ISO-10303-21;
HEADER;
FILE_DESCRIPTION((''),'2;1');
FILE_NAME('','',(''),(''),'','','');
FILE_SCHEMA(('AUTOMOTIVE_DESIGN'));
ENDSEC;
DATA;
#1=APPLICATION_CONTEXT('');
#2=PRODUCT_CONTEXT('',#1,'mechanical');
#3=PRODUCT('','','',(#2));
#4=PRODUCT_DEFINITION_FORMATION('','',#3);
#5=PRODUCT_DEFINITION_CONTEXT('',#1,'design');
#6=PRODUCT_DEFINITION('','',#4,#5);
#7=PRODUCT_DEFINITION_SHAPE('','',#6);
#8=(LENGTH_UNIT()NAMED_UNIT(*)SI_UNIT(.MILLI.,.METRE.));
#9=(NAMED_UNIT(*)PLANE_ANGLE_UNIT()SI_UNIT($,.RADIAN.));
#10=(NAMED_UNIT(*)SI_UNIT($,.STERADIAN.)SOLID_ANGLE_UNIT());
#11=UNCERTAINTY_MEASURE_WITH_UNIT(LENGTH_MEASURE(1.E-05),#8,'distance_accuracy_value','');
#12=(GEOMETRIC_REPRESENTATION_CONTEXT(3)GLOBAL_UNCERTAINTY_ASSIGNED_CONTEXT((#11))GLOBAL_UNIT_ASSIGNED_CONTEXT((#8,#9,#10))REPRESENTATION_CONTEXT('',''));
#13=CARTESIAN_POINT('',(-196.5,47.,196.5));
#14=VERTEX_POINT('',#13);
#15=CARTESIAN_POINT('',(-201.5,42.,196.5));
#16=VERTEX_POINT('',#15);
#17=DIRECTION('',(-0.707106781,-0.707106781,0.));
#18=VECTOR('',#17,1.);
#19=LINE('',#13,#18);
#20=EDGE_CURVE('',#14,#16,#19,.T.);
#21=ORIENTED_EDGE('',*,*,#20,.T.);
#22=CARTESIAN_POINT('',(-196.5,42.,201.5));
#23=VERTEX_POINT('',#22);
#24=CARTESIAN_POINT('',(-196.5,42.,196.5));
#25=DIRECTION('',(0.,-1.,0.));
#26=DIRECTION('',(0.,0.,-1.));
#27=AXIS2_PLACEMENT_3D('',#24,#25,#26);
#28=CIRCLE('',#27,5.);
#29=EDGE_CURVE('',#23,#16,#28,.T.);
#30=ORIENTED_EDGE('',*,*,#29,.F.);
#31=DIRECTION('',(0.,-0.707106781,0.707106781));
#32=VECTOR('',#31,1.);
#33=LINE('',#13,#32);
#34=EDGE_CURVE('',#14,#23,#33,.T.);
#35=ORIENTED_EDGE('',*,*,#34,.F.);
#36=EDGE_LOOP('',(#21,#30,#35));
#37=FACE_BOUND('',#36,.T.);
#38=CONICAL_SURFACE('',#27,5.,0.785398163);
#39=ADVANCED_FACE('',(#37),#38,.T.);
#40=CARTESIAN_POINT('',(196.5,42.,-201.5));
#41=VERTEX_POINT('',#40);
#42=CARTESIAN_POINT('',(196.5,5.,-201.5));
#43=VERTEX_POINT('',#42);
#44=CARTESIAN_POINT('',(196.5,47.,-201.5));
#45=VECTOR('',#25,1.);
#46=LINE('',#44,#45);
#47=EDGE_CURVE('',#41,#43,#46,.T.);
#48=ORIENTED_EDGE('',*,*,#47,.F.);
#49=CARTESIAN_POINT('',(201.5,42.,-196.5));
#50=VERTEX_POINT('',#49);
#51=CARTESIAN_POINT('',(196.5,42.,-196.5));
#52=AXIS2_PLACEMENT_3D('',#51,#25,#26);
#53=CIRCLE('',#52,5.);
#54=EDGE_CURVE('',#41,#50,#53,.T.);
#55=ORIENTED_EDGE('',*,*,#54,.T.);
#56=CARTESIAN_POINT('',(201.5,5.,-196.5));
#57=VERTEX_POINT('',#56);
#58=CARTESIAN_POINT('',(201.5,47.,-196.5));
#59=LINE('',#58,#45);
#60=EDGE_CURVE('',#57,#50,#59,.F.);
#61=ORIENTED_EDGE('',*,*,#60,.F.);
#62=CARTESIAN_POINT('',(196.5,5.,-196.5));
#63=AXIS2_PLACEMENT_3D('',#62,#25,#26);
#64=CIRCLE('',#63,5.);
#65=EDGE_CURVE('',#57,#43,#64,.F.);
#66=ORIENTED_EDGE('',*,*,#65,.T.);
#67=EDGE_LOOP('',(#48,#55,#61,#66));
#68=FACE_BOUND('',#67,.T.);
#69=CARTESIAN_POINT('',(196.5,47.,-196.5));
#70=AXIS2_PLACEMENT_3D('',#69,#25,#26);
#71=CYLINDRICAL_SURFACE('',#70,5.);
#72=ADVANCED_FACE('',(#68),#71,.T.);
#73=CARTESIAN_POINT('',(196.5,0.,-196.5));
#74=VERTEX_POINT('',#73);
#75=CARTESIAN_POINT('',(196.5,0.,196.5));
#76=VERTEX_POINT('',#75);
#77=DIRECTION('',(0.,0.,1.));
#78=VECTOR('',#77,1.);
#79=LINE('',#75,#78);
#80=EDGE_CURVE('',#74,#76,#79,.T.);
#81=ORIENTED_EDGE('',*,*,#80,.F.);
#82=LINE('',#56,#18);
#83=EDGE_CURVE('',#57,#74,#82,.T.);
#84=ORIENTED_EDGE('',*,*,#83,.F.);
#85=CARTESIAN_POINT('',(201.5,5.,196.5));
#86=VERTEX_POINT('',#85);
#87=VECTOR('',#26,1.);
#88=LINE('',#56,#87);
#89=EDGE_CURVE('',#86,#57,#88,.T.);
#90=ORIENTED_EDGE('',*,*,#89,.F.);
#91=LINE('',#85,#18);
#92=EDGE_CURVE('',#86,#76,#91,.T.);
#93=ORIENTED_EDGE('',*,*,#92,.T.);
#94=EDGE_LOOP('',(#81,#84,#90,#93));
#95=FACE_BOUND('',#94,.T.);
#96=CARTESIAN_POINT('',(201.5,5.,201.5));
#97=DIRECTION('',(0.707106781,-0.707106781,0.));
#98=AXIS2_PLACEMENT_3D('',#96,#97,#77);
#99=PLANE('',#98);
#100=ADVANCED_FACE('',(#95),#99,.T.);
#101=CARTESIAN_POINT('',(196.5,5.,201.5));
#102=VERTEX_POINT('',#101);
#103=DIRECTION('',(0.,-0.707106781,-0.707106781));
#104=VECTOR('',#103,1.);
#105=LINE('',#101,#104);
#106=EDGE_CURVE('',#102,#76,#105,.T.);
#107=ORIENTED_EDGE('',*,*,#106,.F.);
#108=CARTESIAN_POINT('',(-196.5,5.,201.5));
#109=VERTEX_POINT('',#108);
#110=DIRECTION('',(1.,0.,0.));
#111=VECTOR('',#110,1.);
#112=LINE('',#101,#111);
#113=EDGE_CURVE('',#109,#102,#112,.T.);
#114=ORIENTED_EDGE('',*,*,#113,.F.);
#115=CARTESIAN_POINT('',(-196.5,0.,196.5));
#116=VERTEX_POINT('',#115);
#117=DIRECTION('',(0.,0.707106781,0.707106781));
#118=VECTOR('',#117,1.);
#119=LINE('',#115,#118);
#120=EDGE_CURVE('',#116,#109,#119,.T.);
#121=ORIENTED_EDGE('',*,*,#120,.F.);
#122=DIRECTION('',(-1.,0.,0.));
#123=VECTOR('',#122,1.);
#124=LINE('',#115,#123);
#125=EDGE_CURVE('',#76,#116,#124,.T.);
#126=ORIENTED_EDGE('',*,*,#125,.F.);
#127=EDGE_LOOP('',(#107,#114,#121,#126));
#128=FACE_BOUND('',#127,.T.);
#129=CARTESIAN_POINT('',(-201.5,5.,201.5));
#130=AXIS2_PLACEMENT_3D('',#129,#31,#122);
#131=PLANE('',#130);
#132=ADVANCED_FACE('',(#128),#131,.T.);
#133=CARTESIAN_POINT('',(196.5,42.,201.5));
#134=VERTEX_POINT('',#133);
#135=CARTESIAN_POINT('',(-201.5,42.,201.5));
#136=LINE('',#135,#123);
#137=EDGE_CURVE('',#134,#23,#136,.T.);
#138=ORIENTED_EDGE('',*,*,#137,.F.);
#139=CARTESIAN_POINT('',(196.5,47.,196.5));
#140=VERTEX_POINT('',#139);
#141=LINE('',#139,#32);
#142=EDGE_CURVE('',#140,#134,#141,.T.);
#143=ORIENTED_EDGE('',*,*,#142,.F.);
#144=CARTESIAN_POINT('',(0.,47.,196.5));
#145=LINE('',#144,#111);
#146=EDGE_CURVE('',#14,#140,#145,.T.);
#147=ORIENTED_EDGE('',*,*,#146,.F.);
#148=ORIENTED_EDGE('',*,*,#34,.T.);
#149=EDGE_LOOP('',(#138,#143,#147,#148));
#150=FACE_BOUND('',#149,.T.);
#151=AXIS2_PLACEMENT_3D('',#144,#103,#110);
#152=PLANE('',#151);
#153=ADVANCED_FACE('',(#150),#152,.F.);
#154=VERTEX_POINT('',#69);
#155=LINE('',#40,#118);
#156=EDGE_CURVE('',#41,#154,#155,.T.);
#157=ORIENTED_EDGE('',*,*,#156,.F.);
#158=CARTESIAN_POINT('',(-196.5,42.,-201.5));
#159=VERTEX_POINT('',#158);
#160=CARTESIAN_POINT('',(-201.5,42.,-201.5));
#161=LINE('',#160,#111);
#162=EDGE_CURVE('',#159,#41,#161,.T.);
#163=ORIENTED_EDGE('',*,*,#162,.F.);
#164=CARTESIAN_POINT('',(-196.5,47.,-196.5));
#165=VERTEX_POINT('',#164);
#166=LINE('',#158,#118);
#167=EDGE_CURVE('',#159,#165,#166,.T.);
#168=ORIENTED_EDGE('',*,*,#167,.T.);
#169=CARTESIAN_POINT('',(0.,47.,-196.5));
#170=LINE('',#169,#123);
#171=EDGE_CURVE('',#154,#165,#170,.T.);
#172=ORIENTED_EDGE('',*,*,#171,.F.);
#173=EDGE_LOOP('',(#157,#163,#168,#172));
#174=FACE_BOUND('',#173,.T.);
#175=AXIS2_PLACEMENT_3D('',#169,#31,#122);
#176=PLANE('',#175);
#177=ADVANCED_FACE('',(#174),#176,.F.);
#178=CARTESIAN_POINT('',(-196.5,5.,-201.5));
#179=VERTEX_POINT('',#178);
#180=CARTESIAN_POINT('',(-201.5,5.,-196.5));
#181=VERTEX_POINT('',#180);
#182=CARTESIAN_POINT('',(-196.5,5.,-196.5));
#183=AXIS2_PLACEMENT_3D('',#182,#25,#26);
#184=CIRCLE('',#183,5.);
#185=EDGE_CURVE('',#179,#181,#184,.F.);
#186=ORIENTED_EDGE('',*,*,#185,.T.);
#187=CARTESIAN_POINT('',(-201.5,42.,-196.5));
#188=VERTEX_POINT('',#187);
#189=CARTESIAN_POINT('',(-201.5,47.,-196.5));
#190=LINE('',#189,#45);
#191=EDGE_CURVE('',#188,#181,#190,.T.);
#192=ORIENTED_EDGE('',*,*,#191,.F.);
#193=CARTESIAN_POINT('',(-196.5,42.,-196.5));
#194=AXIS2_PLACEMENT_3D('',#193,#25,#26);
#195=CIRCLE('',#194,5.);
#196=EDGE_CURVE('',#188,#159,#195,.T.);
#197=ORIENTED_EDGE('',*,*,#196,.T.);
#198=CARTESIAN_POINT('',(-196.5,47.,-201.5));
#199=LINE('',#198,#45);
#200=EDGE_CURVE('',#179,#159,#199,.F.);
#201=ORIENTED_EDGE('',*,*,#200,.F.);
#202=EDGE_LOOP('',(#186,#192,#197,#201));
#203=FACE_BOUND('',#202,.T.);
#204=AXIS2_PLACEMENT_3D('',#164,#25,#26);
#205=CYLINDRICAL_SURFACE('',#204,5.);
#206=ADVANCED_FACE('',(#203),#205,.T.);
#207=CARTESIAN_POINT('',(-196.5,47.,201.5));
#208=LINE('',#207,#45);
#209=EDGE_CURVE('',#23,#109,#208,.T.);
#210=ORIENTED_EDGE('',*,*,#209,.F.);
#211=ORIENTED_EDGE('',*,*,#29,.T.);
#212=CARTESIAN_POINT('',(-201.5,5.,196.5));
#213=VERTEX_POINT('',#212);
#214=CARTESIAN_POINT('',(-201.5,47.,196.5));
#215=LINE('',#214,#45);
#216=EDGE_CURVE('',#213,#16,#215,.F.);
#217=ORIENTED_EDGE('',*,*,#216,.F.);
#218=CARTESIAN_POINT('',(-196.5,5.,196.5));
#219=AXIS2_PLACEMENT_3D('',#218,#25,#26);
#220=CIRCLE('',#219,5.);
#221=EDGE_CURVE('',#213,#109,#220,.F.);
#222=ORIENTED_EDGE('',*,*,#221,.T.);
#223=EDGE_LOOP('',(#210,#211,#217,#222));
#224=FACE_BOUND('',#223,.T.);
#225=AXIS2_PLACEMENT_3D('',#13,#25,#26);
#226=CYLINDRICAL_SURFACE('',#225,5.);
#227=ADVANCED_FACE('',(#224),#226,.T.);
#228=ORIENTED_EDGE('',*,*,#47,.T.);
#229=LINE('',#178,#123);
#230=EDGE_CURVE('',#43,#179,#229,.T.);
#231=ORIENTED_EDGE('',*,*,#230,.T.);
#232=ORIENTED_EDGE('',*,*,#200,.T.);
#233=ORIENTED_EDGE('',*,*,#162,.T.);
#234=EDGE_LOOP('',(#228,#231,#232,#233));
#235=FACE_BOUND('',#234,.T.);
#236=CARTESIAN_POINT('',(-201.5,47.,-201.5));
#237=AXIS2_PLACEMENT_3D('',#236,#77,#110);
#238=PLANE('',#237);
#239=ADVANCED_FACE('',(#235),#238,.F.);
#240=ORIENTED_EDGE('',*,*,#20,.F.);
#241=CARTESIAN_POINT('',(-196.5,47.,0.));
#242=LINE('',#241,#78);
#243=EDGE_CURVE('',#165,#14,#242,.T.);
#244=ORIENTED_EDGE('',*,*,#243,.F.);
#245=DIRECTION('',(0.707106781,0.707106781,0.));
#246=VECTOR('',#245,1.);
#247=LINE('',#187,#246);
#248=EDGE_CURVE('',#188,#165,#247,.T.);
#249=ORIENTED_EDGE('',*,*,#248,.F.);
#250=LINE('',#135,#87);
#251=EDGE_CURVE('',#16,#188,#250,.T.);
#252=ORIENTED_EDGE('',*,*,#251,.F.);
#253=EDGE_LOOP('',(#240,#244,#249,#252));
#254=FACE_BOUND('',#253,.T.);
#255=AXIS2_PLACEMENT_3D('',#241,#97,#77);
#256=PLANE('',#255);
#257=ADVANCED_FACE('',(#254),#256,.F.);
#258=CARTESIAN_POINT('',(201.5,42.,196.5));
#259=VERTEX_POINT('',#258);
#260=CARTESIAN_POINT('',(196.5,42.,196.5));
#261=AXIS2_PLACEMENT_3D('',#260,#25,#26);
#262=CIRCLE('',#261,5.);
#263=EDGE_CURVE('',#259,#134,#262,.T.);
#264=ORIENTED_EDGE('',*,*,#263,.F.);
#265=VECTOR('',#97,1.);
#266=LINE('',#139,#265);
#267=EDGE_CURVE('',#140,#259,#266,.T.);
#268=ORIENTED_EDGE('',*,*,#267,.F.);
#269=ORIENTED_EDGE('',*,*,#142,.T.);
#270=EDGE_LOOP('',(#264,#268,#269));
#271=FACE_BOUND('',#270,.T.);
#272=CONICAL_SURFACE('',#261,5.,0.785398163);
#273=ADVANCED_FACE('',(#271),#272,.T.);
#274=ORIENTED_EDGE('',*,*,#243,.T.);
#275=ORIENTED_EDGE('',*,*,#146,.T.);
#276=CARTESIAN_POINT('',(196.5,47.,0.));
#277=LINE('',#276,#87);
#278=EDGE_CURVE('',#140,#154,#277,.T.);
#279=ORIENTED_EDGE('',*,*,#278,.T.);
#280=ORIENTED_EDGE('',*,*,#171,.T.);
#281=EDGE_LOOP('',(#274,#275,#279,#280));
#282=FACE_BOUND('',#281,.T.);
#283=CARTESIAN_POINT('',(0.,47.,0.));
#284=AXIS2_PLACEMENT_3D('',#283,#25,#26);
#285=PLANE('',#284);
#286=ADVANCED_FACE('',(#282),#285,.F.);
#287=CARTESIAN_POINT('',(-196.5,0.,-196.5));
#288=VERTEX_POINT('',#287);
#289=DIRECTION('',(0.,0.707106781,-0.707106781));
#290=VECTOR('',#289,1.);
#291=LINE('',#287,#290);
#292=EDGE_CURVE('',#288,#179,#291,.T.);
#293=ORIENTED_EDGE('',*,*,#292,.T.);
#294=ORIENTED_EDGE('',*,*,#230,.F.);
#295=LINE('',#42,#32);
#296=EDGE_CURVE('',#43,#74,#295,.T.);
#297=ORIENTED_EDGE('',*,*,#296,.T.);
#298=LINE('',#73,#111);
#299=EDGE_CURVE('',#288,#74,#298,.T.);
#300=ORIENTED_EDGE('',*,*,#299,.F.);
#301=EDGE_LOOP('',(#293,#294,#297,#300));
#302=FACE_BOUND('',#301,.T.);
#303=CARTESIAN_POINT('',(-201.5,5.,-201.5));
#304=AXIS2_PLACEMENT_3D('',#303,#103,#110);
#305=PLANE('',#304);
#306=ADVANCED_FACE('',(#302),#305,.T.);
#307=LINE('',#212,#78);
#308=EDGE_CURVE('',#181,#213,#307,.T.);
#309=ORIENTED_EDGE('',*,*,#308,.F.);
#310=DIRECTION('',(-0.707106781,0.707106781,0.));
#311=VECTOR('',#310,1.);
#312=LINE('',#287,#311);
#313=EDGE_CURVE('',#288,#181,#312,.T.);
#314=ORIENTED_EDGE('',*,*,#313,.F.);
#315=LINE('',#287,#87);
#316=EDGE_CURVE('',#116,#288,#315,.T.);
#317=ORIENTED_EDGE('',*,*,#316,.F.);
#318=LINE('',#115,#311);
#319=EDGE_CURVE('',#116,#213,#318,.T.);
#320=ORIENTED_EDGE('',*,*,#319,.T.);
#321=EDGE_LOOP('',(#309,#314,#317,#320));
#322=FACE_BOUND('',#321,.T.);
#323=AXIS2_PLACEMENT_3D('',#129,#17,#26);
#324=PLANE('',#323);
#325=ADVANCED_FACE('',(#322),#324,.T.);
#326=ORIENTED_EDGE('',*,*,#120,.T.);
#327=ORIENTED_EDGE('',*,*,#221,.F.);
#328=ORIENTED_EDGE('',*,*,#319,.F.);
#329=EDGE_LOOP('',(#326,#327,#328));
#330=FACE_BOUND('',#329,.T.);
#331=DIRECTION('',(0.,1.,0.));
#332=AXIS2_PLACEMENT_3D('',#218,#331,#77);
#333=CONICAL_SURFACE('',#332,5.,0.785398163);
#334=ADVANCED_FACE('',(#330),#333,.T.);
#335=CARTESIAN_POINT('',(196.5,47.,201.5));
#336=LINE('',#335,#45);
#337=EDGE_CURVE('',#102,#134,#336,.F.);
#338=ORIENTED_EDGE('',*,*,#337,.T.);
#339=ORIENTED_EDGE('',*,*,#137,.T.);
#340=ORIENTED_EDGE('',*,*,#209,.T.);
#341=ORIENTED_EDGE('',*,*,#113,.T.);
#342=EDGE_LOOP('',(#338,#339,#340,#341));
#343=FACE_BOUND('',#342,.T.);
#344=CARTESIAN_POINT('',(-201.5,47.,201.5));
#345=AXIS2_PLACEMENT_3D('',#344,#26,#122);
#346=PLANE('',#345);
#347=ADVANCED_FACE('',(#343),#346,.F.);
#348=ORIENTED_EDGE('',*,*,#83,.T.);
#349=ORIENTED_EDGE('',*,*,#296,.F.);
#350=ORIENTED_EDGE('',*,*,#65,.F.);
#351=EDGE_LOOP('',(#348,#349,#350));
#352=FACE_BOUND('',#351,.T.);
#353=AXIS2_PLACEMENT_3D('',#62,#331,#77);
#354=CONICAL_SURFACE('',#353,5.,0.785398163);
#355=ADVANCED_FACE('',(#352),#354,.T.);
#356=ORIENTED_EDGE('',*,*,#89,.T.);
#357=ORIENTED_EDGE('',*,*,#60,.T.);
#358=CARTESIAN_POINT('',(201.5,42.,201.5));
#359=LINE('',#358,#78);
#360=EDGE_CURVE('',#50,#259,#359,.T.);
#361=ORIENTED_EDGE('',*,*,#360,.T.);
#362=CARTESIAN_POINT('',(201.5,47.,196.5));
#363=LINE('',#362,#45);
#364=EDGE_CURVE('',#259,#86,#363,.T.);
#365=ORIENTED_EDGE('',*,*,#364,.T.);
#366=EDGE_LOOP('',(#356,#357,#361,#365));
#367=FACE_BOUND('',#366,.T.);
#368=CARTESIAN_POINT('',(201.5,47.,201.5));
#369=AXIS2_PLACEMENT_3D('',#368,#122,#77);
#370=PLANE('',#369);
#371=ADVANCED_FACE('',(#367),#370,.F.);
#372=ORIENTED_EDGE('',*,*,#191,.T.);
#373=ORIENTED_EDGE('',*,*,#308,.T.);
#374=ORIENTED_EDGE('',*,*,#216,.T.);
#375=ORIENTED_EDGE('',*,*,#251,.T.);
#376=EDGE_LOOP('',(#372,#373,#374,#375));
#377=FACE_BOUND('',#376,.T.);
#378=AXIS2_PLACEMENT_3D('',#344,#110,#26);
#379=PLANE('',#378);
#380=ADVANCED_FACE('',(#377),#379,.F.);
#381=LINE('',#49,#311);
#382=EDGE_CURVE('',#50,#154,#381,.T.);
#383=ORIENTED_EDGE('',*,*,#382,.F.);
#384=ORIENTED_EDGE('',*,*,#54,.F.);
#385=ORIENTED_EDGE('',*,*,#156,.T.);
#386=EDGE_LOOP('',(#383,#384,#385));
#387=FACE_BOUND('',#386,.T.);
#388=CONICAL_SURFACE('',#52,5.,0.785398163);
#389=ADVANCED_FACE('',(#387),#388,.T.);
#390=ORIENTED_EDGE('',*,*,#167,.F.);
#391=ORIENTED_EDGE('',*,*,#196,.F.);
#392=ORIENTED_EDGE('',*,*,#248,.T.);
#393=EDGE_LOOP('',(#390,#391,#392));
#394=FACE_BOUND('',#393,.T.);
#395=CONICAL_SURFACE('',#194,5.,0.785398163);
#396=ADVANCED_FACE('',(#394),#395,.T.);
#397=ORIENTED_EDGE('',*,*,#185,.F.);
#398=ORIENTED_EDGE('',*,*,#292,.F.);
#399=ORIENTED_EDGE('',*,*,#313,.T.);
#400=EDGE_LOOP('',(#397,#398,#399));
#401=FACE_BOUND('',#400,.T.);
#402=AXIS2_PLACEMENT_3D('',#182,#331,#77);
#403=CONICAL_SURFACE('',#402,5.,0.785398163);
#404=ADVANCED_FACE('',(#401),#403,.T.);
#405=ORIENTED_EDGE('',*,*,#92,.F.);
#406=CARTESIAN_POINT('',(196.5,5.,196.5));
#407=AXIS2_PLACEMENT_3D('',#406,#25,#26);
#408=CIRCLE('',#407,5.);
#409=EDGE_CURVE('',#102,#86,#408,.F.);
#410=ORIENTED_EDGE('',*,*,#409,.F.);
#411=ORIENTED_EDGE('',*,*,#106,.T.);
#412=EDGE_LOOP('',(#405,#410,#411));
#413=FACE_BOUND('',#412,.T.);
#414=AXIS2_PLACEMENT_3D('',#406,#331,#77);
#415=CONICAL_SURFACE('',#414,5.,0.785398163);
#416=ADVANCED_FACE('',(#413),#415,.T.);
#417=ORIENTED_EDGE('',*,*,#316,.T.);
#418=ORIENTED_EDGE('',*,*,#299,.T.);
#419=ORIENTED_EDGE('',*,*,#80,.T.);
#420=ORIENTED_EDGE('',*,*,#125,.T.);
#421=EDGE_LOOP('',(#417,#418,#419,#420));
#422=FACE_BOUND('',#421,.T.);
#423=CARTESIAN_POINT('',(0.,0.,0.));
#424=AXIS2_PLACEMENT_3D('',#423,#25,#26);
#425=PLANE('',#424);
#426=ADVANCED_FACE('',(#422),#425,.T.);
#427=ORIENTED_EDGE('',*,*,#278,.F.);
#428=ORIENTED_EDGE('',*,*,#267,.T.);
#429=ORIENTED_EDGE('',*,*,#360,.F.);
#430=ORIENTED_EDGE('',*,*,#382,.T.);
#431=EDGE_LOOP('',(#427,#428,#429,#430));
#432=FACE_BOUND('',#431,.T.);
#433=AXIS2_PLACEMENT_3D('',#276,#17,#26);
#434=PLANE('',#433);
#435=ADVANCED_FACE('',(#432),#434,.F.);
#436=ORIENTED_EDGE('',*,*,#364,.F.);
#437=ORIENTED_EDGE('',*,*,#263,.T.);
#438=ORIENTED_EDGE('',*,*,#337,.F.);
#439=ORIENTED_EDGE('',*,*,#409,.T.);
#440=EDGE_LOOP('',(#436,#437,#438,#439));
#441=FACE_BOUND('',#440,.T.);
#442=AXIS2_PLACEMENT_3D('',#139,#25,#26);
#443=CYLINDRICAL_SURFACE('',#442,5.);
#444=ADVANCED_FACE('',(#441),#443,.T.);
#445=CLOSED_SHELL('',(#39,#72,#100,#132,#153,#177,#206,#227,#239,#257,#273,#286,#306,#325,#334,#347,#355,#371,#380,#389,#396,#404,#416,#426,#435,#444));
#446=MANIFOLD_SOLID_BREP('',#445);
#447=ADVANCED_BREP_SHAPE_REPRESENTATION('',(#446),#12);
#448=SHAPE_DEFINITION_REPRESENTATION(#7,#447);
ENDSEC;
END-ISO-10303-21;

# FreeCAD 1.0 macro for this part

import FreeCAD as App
import Part
import Sketcher
Q = App.Units.Quantity


def edges_at(feature, points):
    """Names of the edges that pass closest to the given points."""
    edges = feature.Shape.Edges
    near = lambda p: min(range(len(edges)), key=lambda i: edges[i].distToShape(Part.Vertex(*p))[0])
    return sorted({f"Edge{near(p) + 1}" for p in points})

doc = App.newDocument("Part")
body = doc.addObject("PartDesign::Body", "Body")

# Sketch on XZ plane
sketch1 = body.newObject("Sketcher::SketchObject", "Sketch")
sketch1.AttachmentSupport = (doc.getObject("XZ_Plane"), [""])
sketch1.MapMode = "FlatFace"
sketch1.addGeometry([
    Part.LineSegment(App.Vector(-202, -202, 0), App.Vector(-202, 202, 0)),
    Part.LineSegment(App.Vector(-202, 202, 0), App.Vector(202, 202, 0)),
    Part.LineSegment(App.Vector(202, 202, 0), App.Vector(202, -202, 0)),
    Part.LineSegment(App.Vector(202, -202, 0), App.Vector(-202, -202, 0)),
], False)
sketch1.addConstraint([
    Sketcher.Constraint("Coincident", 0, 2, 1, 1),
    Sketcher.Constraint("Coincident", 1, 2, 2, 1),
    Sketcher.Constraint("Coincident", 2, 2, 3, 1),
    Sketcher.Constraint("Coincident", 3, 2, 0, 1),
    Sketcher.Constraint("Vertical", 0),
    Sketcher.Constraint("Horizontal", 1),
    Sketcher.Constraint("Vertical", 2),
    Sketcher.Constraint("Horizontal", 3),
    Sketcher.Constraint("Symmetric", 0, 2, 2, 2, -1, 1),
    Sketcher.Constraint("Equal", 3, 0),
    Sketcher.Constraint("DistanceX", 1, 1, 1, 2, Q("403 mm")),
])
pad1 = body.newObject("PartDesign::Pad", "Pad")
pad1.Profile = sketch1
pad1.Length = 47
pad1.Reversed = True
doc.recompute()

fillet = body.newObject("PartDesign::Fillet", "Fillet")
fillet.Base = (pad1, edges_at(pad1, [
    (201.5, 23.5, 201.5),
    (-201.5, 23.5, 201.5),
    (-201.5, 23.5, -201.5),
    (201.5, 23.5, -201.5),
]))
fillet.Radius = 5
doc.recompute()

chamfer = body.newObject("PartDesign::Chamfer", "Chamfer")
chamfer.Base = (fillet, edges_at(fillet, [
    (0, 0, -201.5),
    (0, 47, -201.5),
    (201.5, 0, 0),
    (0, 0, 201.5),
    (-201.5, 0, 0),
    (-200.036, 0, 200.036),
    (-200.036, 0, -200.036),
    (200.036, 0, 200.036),
    (200.036, 0, -200.036),
    (201.5, 47, 0),
    (-201.5, 47, 0),
    (0, 47, 201.5),
    (-200.036, 47, 200.036),
    (-200.036, 47, -200.036),
    (200.036, 47, 200.036),
    (200.036, 47, -200.036),
]))
chamfer.Size = 5

doc.recompute()
